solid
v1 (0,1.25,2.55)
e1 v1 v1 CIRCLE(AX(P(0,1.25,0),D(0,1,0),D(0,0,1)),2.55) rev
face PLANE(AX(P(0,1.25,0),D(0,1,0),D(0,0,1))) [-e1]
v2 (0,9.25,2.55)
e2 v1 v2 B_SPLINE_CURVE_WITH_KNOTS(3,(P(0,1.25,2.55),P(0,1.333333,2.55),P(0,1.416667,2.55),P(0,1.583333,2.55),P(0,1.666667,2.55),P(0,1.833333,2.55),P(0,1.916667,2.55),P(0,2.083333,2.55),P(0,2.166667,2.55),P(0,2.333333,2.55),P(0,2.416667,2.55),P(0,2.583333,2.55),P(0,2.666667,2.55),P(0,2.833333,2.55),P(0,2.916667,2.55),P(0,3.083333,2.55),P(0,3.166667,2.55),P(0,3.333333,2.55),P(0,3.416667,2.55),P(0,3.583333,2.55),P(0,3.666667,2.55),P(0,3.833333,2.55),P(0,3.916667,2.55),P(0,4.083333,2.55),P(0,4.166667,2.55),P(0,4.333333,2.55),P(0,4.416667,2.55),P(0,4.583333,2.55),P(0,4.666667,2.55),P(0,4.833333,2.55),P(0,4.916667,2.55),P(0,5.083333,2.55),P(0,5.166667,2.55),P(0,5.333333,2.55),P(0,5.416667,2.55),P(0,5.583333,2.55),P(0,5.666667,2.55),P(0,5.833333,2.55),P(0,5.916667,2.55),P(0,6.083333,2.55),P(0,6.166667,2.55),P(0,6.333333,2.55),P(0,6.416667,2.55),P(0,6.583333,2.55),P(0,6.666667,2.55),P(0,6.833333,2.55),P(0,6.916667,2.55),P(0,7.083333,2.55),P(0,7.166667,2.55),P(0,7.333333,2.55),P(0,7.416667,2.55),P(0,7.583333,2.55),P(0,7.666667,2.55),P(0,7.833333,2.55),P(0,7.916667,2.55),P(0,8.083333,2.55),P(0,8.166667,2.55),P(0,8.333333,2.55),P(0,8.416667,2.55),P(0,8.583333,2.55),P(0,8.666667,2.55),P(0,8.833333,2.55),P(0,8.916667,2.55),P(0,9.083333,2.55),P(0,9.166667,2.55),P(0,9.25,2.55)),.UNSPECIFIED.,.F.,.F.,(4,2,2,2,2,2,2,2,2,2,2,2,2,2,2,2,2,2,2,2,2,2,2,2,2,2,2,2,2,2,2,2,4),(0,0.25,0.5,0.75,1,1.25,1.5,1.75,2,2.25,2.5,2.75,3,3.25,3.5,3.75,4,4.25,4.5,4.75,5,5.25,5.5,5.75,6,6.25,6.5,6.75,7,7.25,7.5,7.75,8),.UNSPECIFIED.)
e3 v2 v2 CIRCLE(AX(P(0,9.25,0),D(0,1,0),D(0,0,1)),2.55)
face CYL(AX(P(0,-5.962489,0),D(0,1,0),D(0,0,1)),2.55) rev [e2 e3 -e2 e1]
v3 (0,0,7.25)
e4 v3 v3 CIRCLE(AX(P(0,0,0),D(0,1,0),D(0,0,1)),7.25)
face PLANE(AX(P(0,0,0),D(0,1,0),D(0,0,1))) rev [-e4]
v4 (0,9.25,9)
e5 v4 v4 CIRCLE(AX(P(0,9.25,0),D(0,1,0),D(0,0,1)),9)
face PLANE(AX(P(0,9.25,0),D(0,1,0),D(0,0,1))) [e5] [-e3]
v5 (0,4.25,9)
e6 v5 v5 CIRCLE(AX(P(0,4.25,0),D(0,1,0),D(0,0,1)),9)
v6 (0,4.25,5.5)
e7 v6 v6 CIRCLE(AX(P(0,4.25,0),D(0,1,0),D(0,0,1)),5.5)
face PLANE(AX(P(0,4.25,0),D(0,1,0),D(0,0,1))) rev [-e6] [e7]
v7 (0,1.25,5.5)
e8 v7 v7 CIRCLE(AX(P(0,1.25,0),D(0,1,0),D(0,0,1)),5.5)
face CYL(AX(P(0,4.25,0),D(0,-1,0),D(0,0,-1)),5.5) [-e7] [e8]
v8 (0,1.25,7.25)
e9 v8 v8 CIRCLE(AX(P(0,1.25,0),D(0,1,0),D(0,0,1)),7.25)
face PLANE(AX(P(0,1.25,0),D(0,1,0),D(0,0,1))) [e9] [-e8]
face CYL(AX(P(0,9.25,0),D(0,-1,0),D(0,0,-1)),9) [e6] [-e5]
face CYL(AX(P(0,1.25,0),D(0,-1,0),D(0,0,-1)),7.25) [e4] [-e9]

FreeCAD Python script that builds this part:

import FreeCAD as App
import Part
import Sketcher
from FreeCAD import Vector

doc = App.newDocument("Part")
params = doc.addObject("Spreadsheet::Sheet", "Params")
for row, (alias, value) in enumerate([
    ("sketch1_diameter", "14.5 mm"),
    ("pad1_length", "1.25 mm"),
    ("sketch2_diameter", "11 mm"),
    ("pad2_length", "3 mm"),
    ("sketch3_diameter", "18 mm"),
    ("pad3_length", "5 mm"),
    ("sketch4_diameter", "5.1 mm"),
    ("pocket1_length", "8 mm"),
], start=1):
    params.set(f"A{row}", alias)
    params.set(f"B{row}", "=" + value)
    params.setAlias(f"B{row}", alias)

body = doc.addObject("PartDesign::Body", "Body")

sketch1 = body.newObject("Sketcher::SketchObject", "Sketch")
sketch1.AttachmentSupport = (doc.getObject("XZ_Plane"), [""])
sketch1.MapMode = "FlatFace"
sketch1.addGeometry(Part.Circle(Vector(0, 0, 0), Vector(0, 0, 1), 7.25), False)
sketch1.addConstraint([
    Sketcher.Constraint("Coincident", 0, 3, -1, 1),
    Sketcher.Constraint("Diameter", 0, 14.5),
])
sketch1.setExpression("Constraints[1]", "Params.sketch1_diameter")
pad1 = body.newObject("PartDesign::Pad", "Pad")
pad1.Profile = sketch1
pad1.setExpression("Length", "Params.pad1_length")
pad1.Reversed = True

sketch2 = body.newObject("Sketcher::SketchObject", "Sketch001")
sketch2.AttachmentSupport = (doc.getObject("XZ_Plane"), [""])
sketch2.MapMode = "FlatFace"
sketch2.AttachmentOffset = App.Placement(Vector(0, 0, -1.25), App.Rotation())
sketch2.addGeometry(Part.Circle(Vector(0, 0, 0), Vector(0, 0, 1), 5.5), False)
sketch2.addConstraint([
    Sketcher.Constraint("Coincident", 0, 3, -1, 1),
    Sketcher.Constraint("Diameter", 0, 11.0),
])
sketch2.setExpression("Constraints[1]", "Params.sketch2_diameter")
pad2 = body.newObject("PartDesign::Pad", "Pad001")
pad2.Profile = sketch2
pad2.setExpression("Length", "Params.pad2_length")
pad2.Reversed = True

sketch3 = body.newObject("Sketcher::SketchObject", "Sketch002")
sketch3.AttachmentSupport = (doc.getObject("XZ_Plane"), [""])
sketch3.MapMode = "FlatFace"
sketch3.AttachmentOffset = App.Placement(Vector(0, 0, -4.25), App.Rotation())
sketch3.addGeometry(Part.Circle(Vector(0, 0, 0), Vector(0, 0, 1), 9), False)
sketch3.addConstraint([
    Sketcher.Constraint("Coincident", 0, 3, -1, 1),
    Sketcher.Constraint("Diameter", 0, 18.0),
])
sketch3.setExpression("Constraints[1]", "Params.sketch3_diameter")
pad3 = body.newObject("PartDesign::Pad", "Pad002")
pad3.Profile = sketch3
pad3.setExpression("Length", "Params.pad3_length")
pad3.Reversed = True

sketch4 = body.newObject("Sketcher::SketchObject", "Sketch003")
sketch4.AttachmentSupport = (doc.getObject("XZ_Plane"), [""])
sketch4.MapMode = "FlatFace"
sketch4.AttachmentOffset = App.Placement(Vector(0, 0, -9.25), App.Rotation())
sketch4.addGeometry(Part.Circle(Vector(0, 0, 0), Vector(0, 0, 1), 2.55), False)
sketch4.addConstraint([
    Sketcher.Constraint("Coincident", 0, 3, -1, 1),
    Sketcher.Constraint("Diameter", 0, 5.1),
])
sketch4.setExpression("Constraints[1]", "Params.sketch4_diameter")
pocket1 = body.newObject("PartDesign::Pocket", "Pocket")
pocket1.Profile = sketch4
pocket1.setExpression("Length", "Params.pocket1_length")
pocket1.Reversed = True

doc.recompute()
